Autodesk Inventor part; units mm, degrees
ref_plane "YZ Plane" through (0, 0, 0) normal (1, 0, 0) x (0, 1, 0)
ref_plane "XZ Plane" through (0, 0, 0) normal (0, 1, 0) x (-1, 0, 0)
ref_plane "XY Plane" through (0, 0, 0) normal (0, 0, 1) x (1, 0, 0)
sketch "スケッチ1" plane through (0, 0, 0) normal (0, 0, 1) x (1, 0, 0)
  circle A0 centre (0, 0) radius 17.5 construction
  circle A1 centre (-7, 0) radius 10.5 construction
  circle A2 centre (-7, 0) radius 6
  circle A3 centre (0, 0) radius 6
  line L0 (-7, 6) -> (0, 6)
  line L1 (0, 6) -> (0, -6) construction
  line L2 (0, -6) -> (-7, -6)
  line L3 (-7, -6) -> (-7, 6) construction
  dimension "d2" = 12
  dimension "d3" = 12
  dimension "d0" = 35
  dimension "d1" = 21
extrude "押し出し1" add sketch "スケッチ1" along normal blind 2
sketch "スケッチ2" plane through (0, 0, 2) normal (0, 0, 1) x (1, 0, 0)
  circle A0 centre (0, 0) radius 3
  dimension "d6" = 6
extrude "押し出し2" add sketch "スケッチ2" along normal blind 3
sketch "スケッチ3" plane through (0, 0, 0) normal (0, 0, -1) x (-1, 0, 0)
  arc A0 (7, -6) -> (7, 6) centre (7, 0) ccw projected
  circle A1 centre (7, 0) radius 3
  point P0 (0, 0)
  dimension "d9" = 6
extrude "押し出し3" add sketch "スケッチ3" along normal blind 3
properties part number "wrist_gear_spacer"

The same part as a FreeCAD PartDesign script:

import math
import FreeCAD as App
import Part
import Sketcher

V = App.Vector
Q = App.Units.Quantity

doc = App.newDocument("Part")
body = doc.addObject("PartDesign::Body", "Body")

# Sketch on XY plane
sketch1 = doc.addObject("Sketcher::SketchObject", "Sketch")
body.addObject(sketch1)
sketch1.AttachmentSupport = (doc.XY_Plane, [""])
sketch1.MapMode = "FlatFace"
sketch1.addGeometry([
    Part.ArcOfCircle(Part.Circle(V(-7, 0, 0), V(0, 0, 1), 6), math.radians(90), math.radians(270)),
    Part.LineSegment(V(-7, -6, 0), V(0, -6, 0)),
    Part.ArcOfCircle(Part.Circle(V(0, 0, 0), V(0, 0, 1), 6), math.radians(-90), math.radians(90)),
    Part.LineSegment(V(0, 6, 0), V(-7, 6, 0)),
], False)
sketch1.addConstraint([
    Sketcher.Constraint("Tangent", 0, 2, 1, 1),
    Sketcher.Constraint("Tangent", 1, 2, 2, 1),
    Sketcher.Constraint("Tangent", 2, 2, 3, 1),
    Sketcher.Constraint("Tangent", 3, 2, 0, 1),
    Sketcher.Constraint("Horizontal", 1),
    Sketcher.Constraint("Horizontal", 3),
    Sketcher.Constraint("Coincident", 2, 3, -1, 1),
    Sketcher.Constraint("Radius", 0, Q("6 mm")),
    Sketcher.Constraint("DistanceX", 1, 1, 1, 2, Q("7 mm")),
])
pad1 = doc.addObject("PartDesign::Pad", "Pad")
body.addObject(pad1)
pad1.Profile = sketch1
pad1.Length = 2

# Sketch on XY plane
sketch2 = doc.addObject("Sketcher::SketchObject", "Sketch001")
body.addObject(sketch2)
sketch2.AttachmentSupport = (doc.XY_Plane, [""])
sketch2.MapMode = "FlatFace"
sketch2.AttachmentOffset = App.Placement(V(0, 0, 2), App.Rotation())
sketch2.addGeometry(Part.Circle(V(0, 0, 0), V(0, 0, 1), 3), False)
sketch2.addConstraint([
    Sketcher.Constraint("Coincident", 0, 3, -1, 1),
    Sketcher.Constraint("Diameter", 0, Q("6 mm")),
])
pad2 = doc.addObject("PartDesign::Pad", "Pad001")
body.addObject(pad2)
pad2.Profile = sketch2
pad2.Length = 3

# Sketch on XY plane
sketch3 = doc.addObject("Sketcher::SketchObject", "Sketch002")
body.addObject(sketch3)
sketch3.AttachmentSupport = (doc.XY_Plane, [""])
sketch3.MapMode = "FlatFace"
sketch3.addGeometry(Part.Circle(V(-7, 0, 0), V(0, 0, 1), 3), False)
sketch3.addConstraint([
    Sketcher.Constraint("PointOnObject", 0, 3, -1),
    Sketcher.Constraint("Diameter", 0, Q("6 mm")),
    Sketcher.Constraint("DistanceX", 0, 3, -1, 1, Q("7 mm")),
])
pad3 = doc.addObject("PartDesign::Pad", "Pad002")
body.addObject(pad3)
pad3.Profile = sketch3
pad3.Length = 3
pad3.Reversed = True

doc.recompute()
